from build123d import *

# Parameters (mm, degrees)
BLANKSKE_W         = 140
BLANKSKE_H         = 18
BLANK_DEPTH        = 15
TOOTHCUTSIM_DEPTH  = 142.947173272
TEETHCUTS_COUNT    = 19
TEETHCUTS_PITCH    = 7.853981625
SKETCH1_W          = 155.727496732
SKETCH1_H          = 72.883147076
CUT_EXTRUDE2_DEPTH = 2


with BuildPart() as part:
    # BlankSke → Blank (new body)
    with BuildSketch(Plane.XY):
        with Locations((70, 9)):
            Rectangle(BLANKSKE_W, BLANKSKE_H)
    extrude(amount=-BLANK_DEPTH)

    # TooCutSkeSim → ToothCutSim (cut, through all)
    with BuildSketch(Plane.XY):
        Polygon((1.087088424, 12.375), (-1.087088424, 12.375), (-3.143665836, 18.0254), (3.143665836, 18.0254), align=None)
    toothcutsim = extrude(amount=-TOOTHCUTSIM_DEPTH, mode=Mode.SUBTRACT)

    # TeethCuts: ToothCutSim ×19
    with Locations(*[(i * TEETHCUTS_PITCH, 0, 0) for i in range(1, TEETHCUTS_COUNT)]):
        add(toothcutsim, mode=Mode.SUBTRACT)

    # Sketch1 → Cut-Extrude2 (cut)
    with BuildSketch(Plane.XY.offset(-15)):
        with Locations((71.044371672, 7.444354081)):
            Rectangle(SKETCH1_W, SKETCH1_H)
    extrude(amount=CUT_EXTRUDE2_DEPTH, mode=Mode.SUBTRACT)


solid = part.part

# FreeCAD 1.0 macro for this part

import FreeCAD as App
import Part
import Sketcher

V = App.Vector
Q = App.Units.Quantity


def add_polygon(sketch, points):
    """Adds a closed chain of lines whose ends are joined by coincident constraints."""
    first, n = sketch.GeometryCount, len(points)
    for a, b in zip(points, points[1:] + points[:1]):
        sketch.addGeometry(Part.LineSegment(App.Vector(*a, 0), App.Vector(*b, 0)), False)
    for i in range(n):
        sketch.addConstraint(Sketcher.Constraint("Coincident", first + i, 2, first + (i + 1) % n, 1))

doc = App.newDocument("Part")
params = doc.addObject("Spreadsheet::Sheet", "Params")
for row, (alias, value) in enumerate([
    ("sketch1_width", "140 mm"),
    ("sketch1_height", "18 mm"),
    ("pad1_length", "15 mm"),
    ("linearpattern_pitch", "7.853982 mm"),
    ("pocket2_length", "2 mm"),
], start=1):
    params.set(f"A{row}", alias)
    params.set(f"B{row}", "=" + value)
    params.setAlias(f"B{row}", alias)

body = doc.addObject("PartDesign::Body", "Body")

sketch1 = body.newObject("Sketcher::SketchObject", "Sketch")
sketch1.AttachmentSupport = (doc.getObject("XY_Plane"), [""])
sketch1.MapMode = "FlatFace"
add_polygon(sketch1, [(0, 18), (0, 0), (140, 0), (140, 18)])
sketch1.addConstraint(Sketcher.Constraint("Vertical", 0))
sketch1.addConstraint(Sketcher.Constraint("Horizontal", 1))
sketch1.addConstraint(Sketcher.Constraint("Vertical", 2))
sketch1.addConstraint(Sketcher.Constraint("Horizontal", 3))
sketch1.addConstraint(Sketcher.Constraint("Coincident", 0, 2, -1, 1))
sketch1.addConstraint(Sketcher.Constraint("DistanceX", 1, 1, 1, 2, 140.0))
sketch1.addConstraint(Sketcher.Constraint("DistanceY", 0, 2, 0, 1, 18.0))
sketch1.setExpression("Constraints[9]", "Params.sketch1_width")
sketch1.setExpression("Constraints[10]", "Params.sketch1_height")
pad1 = body.newObject("PartDesign::Pad", "Pad")
pad1.Profile = sketch1
pad1.setExpression("Length", "Params.pad1_length")
pad1.Reversed = True

sketch2 = body.newObject("Sketcher::SketchObject", "Sketch001")
sketch2.AttachmentSupport = (doc.getObject("XY_Plane"), [""])
sketch2.MapMode = "FlatFace"
add_polygon(sketch2, [(-1.1, 12.4), (1.1, 12.4), (3.1, 18), (-3.1, 18)])
sketch2.addConstraint(Sketcher.Constraint("Horizontal", 0))
sketch2.addConstraint(Sketcher.Constraint("Horizontal", 2))
sketch2.addConstraint(Sketcher.Constraint("Equal", 1, 3))
sketch2.addConstraint(Sketcher.Constraint("Angle", 1, Q("70 deg")))
sketch2.addConstraint(Sketcher.Constraint("DistanceY", -1, 1, 0, 2, 12.375))
sketch2.addConstraint(Sketcher.Constraint("DistanceX", 2, 2, 2, 1, 6.287332))
sketch2.addConstraint(Sketcher.Constraint("DistanceY", -1, 1, 1, 2, 18.0254))
sketch2.addConstraint(Sketcher.Constraint("DistanceX", -1, 1, 0, 2, 1.087088))
pocket1 = body.newObject("PartDesign::Pocket", "Pocket")
pocket1.Profile = sketch2
pocket1.Type = "ThroughAll"
doc.recompute()

linearpattern = body.newObject("PartDesign::LinearPattern", "LinearPattern")
linearpattern.Originals = [pocket1]
linearpattern.Direction = (doc.getObject("X_Axis"), [""])
linearpattern.Mode = "offset"
linearpattern.setExpression("Offset", "Params.linearpattern_pitch")
linearpattern.Occurrences = 19
body.Tip = linearpattern

sketch3 = body.newObject("Sketcher::SketchObject", "Sketch002")
sketch3.AttachmentSupport = (doc.getObject("XY_Plane"), [""])
sketch3.MapMode = "FlatFace"
sketch3.AttachmentOffset = App.Placement(V(0, 0, -15), App.Rotation())
add_polygon(sketch3, [(-7, 44), (-7, -29), (149, -29), (149, 44)])
sketch3.addConstraint(Sketcher.Constraint("Vertical", 0))
sketch3.addConstraint(Sketcher.Constraint("Horizontal", 1))
sketch3.addConstraint(Sketcher.Constraint("Vertical", 2))
sketch3.addConstraint(Sketcher.Constraint("Horizontal", 3))
sketch3.addConstraint(Sketcher.Constraint("DistanceX", 1, 1, 1, 2, 155.727497))
sketch3.addConstraint(Sketcher.Constraint("DistanceY", 0, 2, 0, 1, 72.883147))
sketch3.addConstraint(Sketcher.Constraint("DistanceY", 0, 2, -1, 1, 28.997219))
sketch3.addConstraint(Sketcher.Constraint("DistanceX", -1, 1, 1, 2, 148.90812))
pocket2 = body.newObject("PartDesign::Pocket", "Pocket001")
pocket2.Profile = sketch3
pocket2.setExpression("Length", "Params.pocket2_length")
pocket2.Reversed = True

doc.recompute()
